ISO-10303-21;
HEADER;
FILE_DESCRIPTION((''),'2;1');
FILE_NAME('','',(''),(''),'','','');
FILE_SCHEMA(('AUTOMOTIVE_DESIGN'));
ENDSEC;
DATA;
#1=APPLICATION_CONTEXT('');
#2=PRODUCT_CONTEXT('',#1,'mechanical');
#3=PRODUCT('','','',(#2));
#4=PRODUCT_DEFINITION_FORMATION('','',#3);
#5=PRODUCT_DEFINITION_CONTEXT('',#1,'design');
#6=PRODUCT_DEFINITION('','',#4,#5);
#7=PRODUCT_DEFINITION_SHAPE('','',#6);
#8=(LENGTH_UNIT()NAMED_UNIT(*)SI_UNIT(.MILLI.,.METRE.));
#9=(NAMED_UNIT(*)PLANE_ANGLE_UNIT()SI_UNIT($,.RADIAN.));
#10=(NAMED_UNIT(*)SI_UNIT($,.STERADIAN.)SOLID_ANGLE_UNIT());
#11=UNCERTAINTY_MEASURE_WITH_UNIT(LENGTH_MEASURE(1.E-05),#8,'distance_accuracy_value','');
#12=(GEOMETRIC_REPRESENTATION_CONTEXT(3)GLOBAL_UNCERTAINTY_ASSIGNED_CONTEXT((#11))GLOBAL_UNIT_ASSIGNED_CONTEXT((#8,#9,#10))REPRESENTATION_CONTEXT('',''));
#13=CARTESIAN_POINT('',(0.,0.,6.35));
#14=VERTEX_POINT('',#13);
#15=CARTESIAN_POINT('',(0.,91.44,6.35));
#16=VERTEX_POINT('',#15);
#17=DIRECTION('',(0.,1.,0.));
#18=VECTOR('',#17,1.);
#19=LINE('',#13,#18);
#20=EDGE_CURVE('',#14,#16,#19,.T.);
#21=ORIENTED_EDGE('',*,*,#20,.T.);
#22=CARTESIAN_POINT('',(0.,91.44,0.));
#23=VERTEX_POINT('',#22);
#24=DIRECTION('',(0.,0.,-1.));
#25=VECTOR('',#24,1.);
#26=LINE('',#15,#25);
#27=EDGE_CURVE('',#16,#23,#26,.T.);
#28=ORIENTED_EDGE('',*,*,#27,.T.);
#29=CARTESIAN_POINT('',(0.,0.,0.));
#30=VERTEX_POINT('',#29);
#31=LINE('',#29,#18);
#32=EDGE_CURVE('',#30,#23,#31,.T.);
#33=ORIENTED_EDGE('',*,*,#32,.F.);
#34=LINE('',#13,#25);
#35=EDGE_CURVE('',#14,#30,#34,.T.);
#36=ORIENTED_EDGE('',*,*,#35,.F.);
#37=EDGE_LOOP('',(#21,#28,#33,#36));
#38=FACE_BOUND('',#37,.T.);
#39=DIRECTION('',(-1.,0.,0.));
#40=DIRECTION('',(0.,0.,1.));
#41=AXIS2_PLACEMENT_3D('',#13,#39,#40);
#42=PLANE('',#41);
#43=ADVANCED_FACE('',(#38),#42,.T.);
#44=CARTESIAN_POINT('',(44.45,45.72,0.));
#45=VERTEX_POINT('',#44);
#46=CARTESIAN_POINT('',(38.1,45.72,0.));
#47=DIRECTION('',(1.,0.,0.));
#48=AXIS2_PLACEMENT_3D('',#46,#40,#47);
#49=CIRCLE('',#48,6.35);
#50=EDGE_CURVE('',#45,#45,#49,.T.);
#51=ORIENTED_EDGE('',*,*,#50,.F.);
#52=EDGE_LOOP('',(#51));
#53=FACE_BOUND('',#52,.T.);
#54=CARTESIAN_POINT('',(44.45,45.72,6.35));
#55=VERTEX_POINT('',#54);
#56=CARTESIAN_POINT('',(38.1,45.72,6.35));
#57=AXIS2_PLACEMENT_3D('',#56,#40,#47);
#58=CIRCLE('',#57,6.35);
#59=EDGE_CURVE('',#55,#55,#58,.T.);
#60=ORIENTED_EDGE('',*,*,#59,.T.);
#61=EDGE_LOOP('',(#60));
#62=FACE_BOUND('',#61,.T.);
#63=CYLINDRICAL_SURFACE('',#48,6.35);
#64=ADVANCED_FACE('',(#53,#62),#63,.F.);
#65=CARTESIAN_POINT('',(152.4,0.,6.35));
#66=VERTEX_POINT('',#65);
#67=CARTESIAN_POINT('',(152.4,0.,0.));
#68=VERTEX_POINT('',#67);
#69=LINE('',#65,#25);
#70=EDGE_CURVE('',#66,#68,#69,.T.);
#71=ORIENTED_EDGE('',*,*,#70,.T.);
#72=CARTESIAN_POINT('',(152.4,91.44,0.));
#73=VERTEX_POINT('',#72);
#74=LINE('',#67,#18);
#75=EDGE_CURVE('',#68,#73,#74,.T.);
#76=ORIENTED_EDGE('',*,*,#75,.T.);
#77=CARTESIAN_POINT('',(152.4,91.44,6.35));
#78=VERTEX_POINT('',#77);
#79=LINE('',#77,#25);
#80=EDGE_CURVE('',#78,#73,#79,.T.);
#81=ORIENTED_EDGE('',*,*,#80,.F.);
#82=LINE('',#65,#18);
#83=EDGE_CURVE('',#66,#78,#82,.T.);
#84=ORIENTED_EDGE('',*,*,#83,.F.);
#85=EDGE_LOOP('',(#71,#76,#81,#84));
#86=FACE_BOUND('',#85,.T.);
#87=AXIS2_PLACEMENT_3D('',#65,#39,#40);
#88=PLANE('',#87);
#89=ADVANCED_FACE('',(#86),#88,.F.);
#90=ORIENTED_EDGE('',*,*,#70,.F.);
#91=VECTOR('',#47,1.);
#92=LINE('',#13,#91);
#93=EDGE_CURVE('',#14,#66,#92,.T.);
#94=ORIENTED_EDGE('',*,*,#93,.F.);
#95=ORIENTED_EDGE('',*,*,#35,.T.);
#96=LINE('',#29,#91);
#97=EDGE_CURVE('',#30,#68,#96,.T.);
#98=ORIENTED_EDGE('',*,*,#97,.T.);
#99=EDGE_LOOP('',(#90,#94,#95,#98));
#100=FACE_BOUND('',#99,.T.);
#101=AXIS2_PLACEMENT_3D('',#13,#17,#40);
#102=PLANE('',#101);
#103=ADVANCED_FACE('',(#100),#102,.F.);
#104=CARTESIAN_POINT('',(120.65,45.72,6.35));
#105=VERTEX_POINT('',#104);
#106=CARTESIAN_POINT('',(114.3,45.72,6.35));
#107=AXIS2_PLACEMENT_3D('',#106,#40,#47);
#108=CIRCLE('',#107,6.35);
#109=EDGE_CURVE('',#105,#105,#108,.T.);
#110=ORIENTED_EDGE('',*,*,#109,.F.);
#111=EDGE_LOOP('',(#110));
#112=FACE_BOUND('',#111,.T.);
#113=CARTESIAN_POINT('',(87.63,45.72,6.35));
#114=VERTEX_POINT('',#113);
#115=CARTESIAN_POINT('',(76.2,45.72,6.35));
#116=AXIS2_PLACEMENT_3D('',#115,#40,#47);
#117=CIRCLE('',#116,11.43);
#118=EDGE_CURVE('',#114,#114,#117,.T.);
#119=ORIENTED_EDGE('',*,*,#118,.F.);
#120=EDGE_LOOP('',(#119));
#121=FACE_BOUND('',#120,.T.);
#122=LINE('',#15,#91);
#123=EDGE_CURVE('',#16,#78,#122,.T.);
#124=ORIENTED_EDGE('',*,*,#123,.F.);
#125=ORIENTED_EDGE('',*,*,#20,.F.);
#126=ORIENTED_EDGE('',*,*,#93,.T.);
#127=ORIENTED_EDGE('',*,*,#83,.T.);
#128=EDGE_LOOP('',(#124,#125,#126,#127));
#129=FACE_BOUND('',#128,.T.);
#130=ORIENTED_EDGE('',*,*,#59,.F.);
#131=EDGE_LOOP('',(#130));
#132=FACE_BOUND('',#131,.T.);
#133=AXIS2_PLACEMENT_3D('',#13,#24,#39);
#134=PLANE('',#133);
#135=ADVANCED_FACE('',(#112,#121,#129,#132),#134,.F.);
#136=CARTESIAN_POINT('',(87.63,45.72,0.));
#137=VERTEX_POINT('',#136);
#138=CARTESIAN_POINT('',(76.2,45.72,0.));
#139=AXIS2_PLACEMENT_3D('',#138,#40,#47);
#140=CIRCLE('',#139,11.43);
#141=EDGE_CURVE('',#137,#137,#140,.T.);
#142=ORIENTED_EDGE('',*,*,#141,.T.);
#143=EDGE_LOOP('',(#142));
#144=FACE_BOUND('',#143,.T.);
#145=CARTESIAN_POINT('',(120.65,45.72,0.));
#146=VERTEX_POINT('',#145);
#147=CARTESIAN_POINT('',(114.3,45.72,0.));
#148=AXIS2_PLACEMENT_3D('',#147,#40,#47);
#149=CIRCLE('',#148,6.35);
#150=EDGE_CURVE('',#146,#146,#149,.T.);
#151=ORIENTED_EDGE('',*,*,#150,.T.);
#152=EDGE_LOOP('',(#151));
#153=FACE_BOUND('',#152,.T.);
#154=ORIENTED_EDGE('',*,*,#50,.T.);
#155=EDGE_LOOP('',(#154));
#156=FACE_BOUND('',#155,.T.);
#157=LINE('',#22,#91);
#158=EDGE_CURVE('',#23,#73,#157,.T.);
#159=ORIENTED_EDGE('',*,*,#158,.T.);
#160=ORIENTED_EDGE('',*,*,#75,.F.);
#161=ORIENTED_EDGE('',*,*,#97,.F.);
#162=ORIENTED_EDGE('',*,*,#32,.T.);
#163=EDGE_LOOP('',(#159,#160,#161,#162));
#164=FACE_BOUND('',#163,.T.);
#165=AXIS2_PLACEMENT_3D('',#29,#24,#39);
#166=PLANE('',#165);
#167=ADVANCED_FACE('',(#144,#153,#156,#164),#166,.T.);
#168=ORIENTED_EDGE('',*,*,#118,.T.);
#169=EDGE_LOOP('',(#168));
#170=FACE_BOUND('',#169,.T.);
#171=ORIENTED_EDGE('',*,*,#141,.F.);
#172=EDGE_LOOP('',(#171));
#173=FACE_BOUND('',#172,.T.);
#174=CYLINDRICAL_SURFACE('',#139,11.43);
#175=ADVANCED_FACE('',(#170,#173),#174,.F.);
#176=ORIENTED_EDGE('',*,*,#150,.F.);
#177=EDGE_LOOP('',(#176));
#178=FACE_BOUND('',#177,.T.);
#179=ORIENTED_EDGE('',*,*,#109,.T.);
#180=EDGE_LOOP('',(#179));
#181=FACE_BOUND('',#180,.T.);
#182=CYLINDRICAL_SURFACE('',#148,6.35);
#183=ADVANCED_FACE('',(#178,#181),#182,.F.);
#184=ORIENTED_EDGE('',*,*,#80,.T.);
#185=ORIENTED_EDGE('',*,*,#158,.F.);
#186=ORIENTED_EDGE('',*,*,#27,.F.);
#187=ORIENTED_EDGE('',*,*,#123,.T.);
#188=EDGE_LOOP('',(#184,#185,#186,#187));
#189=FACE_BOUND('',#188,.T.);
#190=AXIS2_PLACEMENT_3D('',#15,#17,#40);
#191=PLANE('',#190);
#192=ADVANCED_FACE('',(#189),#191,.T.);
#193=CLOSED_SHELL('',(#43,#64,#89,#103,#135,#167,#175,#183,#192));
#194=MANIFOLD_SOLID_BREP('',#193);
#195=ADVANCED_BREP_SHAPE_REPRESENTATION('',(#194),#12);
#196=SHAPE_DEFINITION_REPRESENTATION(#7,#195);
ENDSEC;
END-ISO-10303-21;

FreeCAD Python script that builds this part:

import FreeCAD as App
import Part
import Sketcher

V = App.Vector
Q = App.Units.Quantity


def add_polygon(sketch, points):
    """Adds a closed chain of lines whose ends are joined by coincident constraints."""
    first, n = sketch.GeometryCount, len(points)
    for a, b in zip(points, points[1:] + points[:1]):
        sketch.addGeometry(Part.LineSegment(App.Vector(*a, 0), App.Vector(*b, 0)), False)
    for i in range(n):
        sketch.addConstraint(Sketcher.Constraint("Coincident", first + i, 2, first + (i + 1) % n, 1))

doc = App.newDocument("Part")
body = doc.addObject("PartDesign::Body", "Body")

# Sketch on XY plane
sketch1 = body.newObject("Sketcher::SketchObject", "Sketch")
sketch1.AttachmentSupport = (doc.getObject("XY_Plane"), [""])
sketch1.MapMode = "FlatFace"
add_polygon(sketch1, [(0, 91), (0, 0), (152, 0), (152, 91)])  # lines 0-3
sketch1.addConstraint(Sketcher.Constraint("Vertical", 0))
sketch1.addConstraint(Sketcher.Constraint("Horizontal", 1))
sketch1.addConstraint(Sketcher.Constraint("Vertical", 2))
sketch1.addConstraint(Sketcher.Constraint("Horizontal", 3))
sketch1.addConstraint(Sketcher.Constraint("Coincident", 0, 2, -1, 1))
sketch1.addConstraint(Sketcher.Constraint("DistanceX", 1, 1, 1, 2, Q("6 in")))
sketch1.addConstraint(Sketcher.Constraint("DistanceY", 0, 2, 0, 1, Q("3.6 in")))
pad1 = body.newObject("PartDesign::Pad", "Pad")
pad1.Profile = sketch1
pad1.Length = Q("0.25 in")

# Sketch on XY plane
sketch2 = body.newObject("Sketcher::SketchObject", "Sketch001")
sketch2.AttachmentSupport = (doc.getObject("XY_Plane"), [""])
sketch2.MapMode = "FlatFace"
sketch2.AttachmentOffset = App.Placement(V(0, 0, 0.25 * 25.4), App.Rotation())
sketch2.addGeometry(Part.Circle(V(76, 46, 0), V(0, 0, 1), 11), False)
sketch2.addGeometry(Part.Circle(V(114, 46, 0), V(0, 0, 1), 6), False)
sketch2.addGeometry(Part.Circle(V(38, 46, 0), V(0, 0, 1), 6), False)
sketch2.addConstraint(Sketcher.Constraint("Equal", 1, 2))
sketch2.addConstraint(Sketcher.Constraint("Horizontal", 0, 3, 1, 3))
sketch2.addConstraint(Sketcher.Constraint("Horizontal", 1, 3, 2, 3))
sketch2.addConstraint(Sketcher.Constraint("Diameter", 0, Q("0.9 in")))
sketch2.addConstraint(Sketcher.Constraint("Diameter", 1, Q("0.5 in")))
sketch2.addConstraint(Sketcher.Constraint("DistanceX", -1, 1, 0, 3, Q("3 in")))
sketch2.addConstraint(Sketcher.Constraint("DistanceX", 2, 3, 1, 3, Q("3 in")))
sketch2.addConstraint(Sketcher.Constraint("DistanceY", -1, 1, 0, 3, Q("1.8 in")))
sketch2.addConstraint(Sketcher.Constraint("DistanceX", -1, 1, 1, 3, Q("4.5 in")))
pocket1 = body.newObject("PartDesign::Pocket", "Pocket")
pocket1.Profile = sketch2
pocket1.Length = Q("0.25 in")

doc.recompute()
